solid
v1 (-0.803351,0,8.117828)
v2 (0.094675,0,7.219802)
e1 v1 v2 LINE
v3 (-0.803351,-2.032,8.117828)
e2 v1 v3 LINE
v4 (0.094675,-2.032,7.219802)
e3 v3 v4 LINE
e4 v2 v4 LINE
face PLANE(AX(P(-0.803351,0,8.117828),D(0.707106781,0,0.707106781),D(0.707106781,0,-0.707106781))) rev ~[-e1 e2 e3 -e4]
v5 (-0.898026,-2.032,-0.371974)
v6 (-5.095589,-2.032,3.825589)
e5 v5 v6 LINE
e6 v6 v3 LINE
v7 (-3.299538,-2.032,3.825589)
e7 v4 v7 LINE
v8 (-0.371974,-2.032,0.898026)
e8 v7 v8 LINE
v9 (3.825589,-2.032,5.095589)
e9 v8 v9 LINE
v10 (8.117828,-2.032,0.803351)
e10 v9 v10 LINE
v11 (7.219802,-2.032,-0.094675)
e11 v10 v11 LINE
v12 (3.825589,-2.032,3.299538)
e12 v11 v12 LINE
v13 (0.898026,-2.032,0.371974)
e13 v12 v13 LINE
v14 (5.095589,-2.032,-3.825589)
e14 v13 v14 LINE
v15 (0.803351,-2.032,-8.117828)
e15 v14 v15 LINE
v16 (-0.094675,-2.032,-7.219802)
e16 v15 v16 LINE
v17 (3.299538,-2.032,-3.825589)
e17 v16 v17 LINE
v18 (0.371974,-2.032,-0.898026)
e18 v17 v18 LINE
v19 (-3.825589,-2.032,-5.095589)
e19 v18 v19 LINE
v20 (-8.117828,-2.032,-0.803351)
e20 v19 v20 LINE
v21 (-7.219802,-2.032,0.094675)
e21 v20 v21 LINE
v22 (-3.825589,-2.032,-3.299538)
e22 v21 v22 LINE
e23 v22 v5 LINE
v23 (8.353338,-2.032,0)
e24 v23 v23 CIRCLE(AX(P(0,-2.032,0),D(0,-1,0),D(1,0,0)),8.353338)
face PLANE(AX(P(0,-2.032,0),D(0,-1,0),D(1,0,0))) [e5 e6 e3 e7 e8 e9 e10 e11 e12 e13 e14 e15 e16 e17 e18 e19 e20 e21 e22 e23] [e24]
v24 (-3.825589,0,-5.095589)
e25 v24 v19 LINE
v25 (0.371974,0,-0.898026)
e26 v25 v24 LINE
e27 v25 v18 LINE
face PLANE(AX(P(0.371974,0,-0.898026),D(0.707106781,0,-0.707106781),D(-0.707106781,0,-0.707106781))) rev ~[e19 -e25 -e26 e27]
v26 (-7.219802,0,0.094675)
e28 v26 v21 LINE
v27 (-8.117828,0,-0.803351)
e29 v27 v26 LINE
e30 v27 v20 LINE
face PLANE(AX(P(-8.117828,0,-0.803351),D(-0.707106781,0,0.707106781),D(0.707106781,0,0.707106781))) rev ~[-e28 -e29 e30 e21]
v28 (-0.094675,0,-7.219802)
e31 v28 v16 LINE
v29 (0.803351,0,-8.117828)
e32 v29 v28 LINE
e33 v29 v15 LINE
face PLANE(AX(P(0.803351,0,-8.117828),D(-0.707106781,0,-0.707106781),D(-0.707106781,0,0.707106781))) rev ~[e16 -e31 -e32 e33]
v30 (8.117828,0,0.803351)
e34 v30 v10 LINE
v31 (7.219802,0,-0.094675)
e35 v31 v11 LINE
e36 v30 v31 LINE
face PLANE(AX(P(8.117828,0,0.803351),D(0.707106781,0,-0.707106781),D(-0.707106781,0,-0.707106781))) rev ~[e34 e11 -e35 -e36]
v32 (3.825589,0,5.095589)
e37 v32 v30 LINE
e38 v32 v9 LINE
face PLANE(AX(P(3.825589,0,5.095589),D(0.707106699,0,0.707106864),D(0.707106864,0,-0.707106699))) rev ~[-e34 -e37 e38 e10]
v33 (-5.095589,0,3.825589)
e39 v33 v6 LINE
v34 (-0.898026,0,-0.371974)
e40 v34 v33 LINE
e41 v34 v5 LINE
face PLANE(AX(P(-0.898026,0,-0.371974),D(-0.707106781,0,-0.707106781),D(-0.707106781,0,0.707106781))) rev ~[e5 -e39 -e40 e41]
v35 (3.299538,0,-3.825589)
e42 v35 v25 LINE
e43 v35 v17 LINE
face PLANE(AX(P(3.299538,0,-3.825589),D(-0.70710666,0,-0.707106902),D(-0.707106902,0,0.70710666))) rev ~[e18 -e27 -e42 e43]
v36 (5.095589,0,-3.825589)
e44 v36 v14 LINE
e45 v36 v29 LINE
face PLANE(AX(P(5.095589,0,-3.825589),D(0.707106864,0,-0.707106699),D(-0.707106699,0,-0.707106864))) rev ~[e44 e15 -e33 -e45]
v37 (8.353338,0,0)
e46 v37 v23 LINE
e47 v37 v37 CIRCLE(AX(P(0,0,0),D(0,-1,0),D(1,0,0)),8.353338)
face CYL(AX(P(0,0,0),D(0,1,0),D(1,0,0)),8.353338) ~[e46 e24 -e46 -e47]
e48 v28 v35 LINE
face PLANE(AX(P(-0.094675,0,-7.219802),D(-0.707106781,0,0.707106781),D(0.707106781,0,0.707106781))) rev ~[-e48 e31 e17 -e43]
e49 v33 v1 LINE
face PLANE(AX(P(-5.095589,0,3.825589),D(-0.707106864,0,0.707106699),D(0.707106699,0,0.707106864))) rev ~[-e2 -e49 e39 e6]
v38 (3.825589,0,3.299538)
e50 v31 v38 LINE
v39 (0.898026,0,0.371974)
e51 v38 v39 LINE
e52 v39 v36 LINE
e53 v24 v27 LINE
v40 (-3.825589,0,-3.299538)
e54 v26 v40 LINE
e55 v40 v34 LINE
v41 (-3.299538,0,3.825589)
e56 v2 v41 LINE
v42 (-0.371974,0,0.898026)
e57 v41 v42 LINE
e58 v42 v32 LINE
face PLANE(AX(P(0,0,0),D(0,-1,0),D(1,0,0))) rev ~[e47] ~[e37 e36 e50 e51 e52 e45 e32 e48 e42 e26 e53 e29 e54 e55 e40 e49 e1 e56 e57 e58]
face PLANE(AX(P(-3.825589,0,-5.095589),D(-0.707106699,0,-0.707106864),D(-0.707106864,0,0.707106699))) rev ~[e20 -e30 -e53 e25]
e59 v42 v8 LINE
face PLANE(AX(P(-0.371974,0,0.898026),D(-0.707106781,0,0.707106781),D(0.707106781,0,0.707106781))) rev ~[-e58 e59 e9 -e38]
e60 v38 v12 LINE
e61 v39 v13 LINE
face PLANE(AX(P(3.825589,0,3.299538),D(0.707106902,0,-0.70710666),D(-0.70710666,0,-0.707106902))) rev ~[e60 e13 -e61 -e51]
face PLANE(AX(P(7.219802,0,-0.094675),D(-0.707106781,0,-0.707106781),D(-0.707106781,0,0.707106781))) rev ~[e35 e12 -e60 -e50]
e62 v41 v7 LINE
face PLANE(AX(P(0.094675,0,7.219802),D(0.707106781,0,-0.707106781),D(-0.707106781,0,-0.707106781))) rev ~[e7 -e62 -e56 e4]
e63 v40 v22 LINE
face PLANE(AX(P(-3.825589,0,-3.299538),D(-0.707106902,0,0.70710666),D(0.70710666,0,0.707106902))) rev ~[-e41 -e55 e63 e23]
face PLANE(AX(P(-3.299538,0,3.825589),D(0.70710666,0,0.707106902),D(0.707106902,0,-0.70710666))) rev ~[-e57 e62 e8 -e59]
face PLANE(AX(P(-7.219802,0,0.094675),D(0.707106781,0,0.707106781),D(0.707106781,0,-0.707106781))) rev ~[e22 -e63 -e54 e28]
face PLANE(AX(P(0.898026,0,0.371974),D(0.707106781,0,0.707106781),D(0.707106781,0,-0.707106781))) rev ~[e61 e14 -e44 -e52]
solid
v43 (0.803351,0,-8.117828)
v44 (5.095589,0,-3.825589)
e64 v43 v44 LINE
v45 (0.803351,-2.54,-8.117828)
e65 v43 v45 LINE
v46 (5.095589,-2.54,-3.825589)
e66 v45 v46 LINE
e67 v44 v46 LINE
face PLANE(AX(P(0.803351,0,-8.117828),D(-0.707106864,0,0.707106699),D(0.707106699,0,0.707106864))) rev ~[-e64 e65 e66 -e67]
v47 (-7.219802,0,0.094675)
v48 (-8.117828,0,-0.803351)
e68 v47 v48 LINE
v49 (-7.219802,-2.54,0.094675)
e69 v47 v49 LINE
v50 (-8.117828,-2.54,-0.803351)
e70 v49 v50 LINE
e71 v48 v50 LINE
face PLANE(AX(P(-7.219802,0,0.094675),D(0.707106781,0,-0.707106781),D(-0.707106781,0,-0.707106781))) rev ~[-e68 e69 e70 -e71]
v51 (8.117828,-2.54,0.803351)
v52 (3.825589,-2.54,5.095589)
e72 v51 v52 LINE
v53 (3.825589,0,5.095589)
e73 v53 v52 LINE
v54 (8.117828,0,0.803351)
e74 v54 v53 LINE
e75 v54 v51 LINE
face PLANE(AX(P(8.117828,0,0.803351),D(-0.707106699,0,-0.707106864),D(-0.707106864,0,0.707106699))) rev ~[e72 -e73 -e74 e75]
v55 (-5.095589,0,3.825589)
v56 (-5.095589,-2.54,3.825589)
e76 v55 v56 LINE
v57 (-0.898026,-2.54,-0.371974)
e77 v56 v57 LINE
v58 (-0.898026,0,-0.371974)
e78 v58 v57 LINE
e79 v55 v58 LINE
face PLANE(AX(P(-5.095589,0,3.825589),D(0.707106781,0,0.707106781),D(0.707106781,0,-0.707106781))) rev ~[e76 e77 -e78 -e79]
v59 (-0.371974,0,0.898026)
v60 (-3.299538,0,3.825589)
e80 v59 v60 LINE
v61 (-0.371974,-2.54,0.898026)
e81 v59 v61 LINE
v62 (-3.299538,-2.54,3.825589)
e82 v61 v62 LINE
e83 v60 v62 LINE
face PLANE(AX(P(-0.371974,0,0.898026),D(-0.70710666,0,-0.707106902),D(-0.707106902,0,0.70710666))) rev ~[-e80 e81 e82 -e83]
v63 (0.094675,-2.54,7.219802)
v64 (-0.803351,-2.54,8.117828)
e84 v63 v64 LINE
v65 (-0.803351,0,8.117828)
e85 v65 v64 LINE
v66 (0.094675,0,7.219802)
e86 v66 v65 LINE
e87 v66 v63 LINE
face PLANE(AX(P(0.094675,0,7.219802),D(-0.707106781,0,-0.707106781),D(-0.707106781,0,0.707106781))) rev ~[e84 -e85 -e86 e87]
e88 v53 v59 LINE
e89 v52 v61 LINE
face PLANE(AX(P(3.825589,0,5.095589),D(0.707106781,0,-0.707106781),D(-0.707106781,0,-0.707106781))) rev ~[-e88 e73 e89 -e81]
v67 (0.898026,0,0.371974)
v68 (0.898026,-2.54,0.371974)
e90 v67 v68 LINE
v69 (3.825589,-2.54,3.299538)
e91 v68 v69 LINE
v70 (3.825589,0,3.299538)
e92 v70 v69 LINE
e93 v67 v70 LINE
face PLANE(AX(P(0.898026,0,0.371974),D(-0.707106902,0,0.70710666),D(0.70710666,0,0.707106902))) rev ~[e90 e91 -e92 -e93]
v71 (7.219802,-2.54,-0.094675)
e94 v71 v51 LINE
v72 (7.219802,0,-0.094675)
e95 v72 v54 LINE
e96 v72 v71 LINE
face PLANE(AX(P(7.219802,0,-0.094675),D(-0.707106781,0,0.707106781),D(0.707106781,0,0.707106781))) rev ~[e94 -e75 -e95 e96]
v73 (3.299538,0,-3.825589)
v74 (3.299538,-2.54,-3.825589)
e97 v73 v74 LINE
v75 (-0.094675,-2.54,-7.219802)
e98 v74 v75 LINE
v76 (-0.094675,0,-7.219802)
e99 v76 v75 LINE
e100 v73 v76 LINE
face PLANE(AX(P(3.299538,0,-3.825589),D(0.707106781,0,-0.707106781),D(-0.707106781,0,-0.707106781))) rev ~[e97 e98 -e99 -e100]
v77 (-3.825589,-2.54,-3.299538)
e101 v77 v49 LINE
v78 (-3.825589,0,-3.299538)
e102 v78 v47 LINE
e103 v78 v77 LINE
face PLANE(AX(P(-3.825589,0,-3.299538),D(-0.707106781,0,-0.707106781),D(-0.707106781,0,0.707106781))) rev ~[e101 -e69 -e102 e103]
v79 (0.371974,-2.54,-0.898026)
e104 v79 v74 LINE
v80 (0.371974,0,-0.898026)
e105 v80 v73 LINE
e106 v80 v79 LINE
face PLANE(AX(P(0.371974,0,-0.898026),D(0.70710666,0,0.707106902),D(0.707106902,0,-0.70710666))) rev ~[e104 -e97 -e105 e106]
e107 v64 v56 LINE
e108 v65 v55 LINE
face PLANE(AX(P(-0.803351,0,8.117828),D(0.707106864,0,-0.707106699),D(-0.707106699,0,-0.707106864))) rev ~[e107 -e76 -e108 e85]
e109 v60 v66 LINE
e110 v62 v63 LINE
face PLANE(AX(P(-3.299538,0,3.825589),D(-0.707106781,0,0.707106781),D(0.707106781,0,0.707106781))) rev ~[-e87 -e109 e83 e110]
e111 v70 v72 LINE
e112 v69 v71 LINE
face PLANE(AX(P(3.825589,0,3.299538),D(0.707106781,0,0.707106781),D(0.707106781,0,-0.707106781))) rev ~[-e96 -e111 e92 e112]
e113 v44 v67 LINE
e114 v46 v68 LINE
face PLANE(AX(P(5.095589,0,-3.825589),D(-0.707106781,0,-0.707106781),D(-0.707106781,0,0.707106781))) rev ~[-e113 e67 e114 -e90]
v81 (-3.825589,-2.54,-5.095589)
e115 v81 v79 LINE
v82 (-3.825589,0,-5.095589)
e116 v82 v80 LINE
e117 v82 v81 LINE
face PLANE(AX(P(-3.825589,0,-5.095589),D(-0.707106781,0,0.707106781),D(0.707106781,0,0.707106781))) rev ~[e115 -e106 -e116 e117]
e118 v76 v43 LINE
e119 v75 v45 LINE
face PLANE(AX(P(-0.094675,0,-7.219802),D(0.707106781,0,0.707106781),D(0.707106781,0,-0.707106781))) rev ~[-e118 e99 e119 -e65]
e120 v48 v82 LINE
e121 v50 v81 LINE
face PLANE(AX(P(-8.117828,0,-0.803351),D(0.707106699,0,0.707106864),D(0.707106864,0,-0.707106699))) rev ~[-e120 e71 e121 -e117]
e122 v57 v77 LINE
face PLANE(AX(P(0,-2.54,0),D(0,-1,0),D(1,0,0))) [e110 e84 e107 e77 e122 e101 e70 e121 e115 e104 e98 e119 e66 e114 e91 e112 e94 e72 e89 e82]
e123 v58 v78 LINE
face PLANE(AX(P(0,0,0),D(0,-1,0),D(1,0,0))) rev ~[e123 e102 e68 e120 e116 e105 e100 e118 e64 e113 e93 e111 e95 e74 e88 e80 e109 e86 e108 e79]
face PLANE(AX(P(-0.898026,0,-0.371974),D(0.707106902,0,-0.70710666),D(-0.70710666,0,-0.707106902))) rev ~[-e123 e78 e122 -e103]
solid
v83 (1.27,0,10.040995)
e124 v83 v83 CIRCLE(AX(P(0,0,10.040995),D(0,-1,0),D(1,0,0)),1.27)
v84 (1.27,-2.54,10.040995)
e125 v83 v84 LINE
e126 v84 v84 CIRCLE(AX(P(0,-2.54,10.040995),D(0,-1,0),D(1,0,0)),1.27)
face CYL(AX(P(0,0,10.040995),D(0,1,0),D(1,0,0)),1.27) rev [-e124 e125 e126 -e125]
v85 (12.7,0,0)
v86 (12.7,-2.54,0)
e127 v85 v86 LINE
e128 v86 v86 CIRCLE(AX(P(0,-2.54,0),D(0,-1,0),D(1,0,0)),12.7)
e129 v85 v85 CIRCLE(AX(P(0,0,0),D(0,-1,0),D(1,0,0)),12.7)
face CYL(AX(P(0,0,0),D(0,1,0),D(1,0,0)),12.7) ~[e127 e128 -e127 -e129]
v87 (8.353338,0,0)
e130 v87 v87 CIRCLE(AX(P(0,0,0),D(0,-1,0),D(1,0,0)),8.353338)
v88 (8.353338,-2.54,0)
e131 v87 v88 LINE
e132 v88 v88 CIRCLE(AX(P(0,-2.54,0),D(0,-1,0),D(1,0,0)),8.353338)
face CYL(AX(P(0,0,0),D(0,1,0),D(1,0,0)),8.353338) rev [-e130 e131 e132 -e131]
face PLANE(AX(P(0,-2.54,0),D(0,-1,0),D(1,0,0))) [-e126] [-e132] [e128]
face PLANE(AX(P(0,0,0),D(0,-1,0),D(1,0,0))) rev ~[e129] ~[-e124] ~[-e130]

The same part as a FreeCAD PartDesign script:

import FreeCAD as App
import Part
import Sketcher

V = App.Vector
Q = App.Units.Quantity

doc = App.newDocument("Part")
body = doc.addObject("PartDesign::Body", "Body")
body.AllowCompound = True

sketch1 = body.newObject("Sketcher::SketchObject", "Sketch")
sketch1.AttachmentSupport = (doc.getObject("XZ_Plane"), [""])
sketch1.MapMode = "FlatFace"
sketch1.addGeometry([
    Part.Circle(V(0, 0, 0), V(0, 0, 1), 12.7),
    Part.Circle(V(0, 0, 0), V(0, 0, 1), 8.4),
    Part.Circle(V(0, 10, 0), V(0, 0, 1), 1.3),
    Part.LineSegment(V(-5.1, 3.8, 0), V(-0.9, -0.4, 0)),
    Part.LineSegment(V(-0.9, -0.4, 0), V(-3.8, -3.3, 0)),
    Part.LineSegment(V(-3.8, -3.3, 0), V(-7.2, 0.1, 0)),
    Part.LineSegment(V(-7.2, 0.1, 0), V(-8.1, -0.8, 0)),
    Part.LineSegment(V(-8.1, -0.8, 0), V(-3.8, -5.1, 0)),
    Part.LineSegment(V(-3.8, -5.1, 0), V(0.4, -0.9, 0)),
    Part.LineSegment(V(0.4, -0.9, 0), V(3.3, -3.8, 0)),
    Part.LineSegment(V(3.3, -3.8, 0), V(-0.1, -7.2, 0)),
    Part.LineSegment(V(-0.1, -7.2, 0), V(0.8, -8.1, 0)),
    Part.LineSegment(V(0.8, -8.1, 0), V(5.1, -3.8, 0)),
    Part.LineSegment(V(5.1, -3.8, 0), V(0.9, 0.4, 0)),
    Part.LineSegment(V(0.9, 0.4, 0), V(3.8, 3.3, 0)),
    Part.LineSegment(V(3.8, 3.3, 0), V(7.2, -0.1, 0)),
    Part.LineSegment(V(7.2, -0.1, 0), V(8.1, 0.8, 0)),
    Part.LineSegment(V(8.1, 0.8, 0), V(3.8, 5.1, 0)),
    Part.LineSegment(V(3.8, 5.1, 0), V(-0.4, 0.9, 0)),
    Part.LineSegment(V(-0.4, 0.9, 0), V(-3.3, 3.8, 0)),
    Part.LineSegment(V(-3.3, 3.8, 0), V(0.1, 7.2, 0)),
    Part.LineSegment(V(0.1, 7.2, 0), V(-0.8, 8.1, 0)),
    Part.LineSegment(V(-0.8, 8.1, 0), V(-5.1, 3.8, 0)),
], False)
sketch1.addConstraint([
    Sketcher.Constraint("Coincident", 3, 2, 4, 1),
    Sketcher.Constraint("Coincident", 4, 2, 5, 1),
    Sketcher.Constraint("Coincident", 5, 2, 6, 1),
    Sketcher.Constraint("Coincident", 6, 2, 7, 1),
    Sketcher.Constraint("Coincident", 7, 2, 8, 1),
    Sketcher.Constraint("Coincident", 8, 2, 9, 1),
    Sketcher.Constraint("Coincident", 9, 2, 10, 1),
    Sketcher.Constraint("Coincident", 10, 2, 11, 1),
    Sketcher.Constraint("Coincident", 11, 2, 12, 1),
    Sketcher.Constraint("Coincident", 12, 2, 13, 1),
    Sketcher.Constraint("Coincident", 13, 2, 14, 1),
    Sketcher.Constraint("Coincident", 14, 2, 15, 1),
    Sketcher.Constraint("Coincident", 15, 2, 16, 1),
    Sketcher.Constraint("Coincident", 16, 2, 17, 1),
    Sketcher.Constraint("Coincident", 17, 2, 18, 1),
    Sketcher.Constraint("Coincident", 18, 2, 19, 1),
    Sketcher.Constraint("Coincident", 19, 2, 20, 1),
    Sketcher.Constraint("Coincident", 20, 2, 21, 1),
    Sketcher.Constraint("Coincident", 21, 2, 22, 1),
    Sketcher.Constraint("Coincident", 22, 2, 3, 1),
    Sketcher.Constraint("Coincident", 0, 3, -1, 1),
    Sketcher.Constraint("Coincident", 1, 3, -1, 1),
    Sketcher.Constraint("Symmetric", 3, 2, 13, 2, -1, 1),
    Sketcher.Constraint("Symmetric", 4, 2, 14, 2, -1, 1),
    Sketcher.Constraint("Symmetric", 5, 2, 15, 2, -1, 1),
    Sketcher.Constraint("Symmetric", 6, 2, 16, 2, -1, 1),
    Sketcher.Constraint("Symmetric", 7, 2, 17, 2, -1, 1),
    Sketcher.Constraint("Symmetric", 8, 2, 18, 2, -1, 1),
    Sketcher.Constraint("Symmetric", 9, 2, 19, 2, -1, 1),
    Sketcher.Constraint("Symmetric", 10, 2, 20, 2, -1, 1),
    Sketcher.Constraint("Symmetric", 11, 2, 21, 2, -1, 1),
    Sketcher.Constraint("Symmetric", 12, 2, 22, 2, -1, 1),
    Sketcher.Constraint("PointOnObject", 2, 3, -2),
    Sketcher.Constraint("Perpendicular", 3, 4),
    Sketcher.Constraint("Perpendicular", 4, 5),
    Sketcher.Constraint("Perpendicular", 5, 6),
    Sketcher.Constraint("Perpendicular", 6, 7),
    Sketcher.Constraint("Perpendicular", 7, 8),
    Sketcher.Constraint("Perpendicular", 8, 9),
    Sketcher.Constraint("Perpendicular", 9, 10),
    Sketcher.Constraint("Perpendicular", 10, 11),
    Sketcher.Constraint("Perpendicular", 11, 12),
    Sketcher.Constraint("Horizontal", 9, 2, 12, 2),
    Sketcher.Constraint("Vertical", 4, 2, 7, 2),
    Sketcher.Constraint("Equal", 3, 8),
    Sketcher.Constraint("Equal", 4, 9),
    Sketcher.Constraint("Equal", 5, 10),
    Sketcher.Constraint("Equal", 6, 11),
    Sketcher.Constraint("Diameter", 0, Q("1 in")),
    Sketcher.Constraint("Diameter", 2, Q("0.1 in")),
    Sketcher.Constraint("Angle", 3, Q("-45 deg")),
    Sketcher.Constraint("Distance", 6, Q("0.05 in")),
    Sketcher.Constraint("DistanceX", 3, 2, 8, 2, Q("0.05 in")),
    Sketcher.Constraint("Distance", 4, Q("0.163 in")),
    Sketcher.Constraint("Diameter", 1, 16.706676),
    Sketcher.Constraint("DistanceX", 5, 2, -1, 1, 7.219802),
    Sketcher.Constraint("DistanceY", 3, 2, 2, 3, 10.412969),
])
pad1 = body.newObject("PartDesign::Pad", "Pad")
pad1.Profile = sketch1
pad1.Length = Q("0.1 in")
body2 = doc.addObject("PartDesign::Body", "Body001")

sketch2 = body2.newObject("Sketcher::SketchObject", "Sketch001")
sketch2.AttachmentSupport = (doc.getObject("XZ_Plane001"), [""])
sketch2.MapMode = "FlatFace"
sketch2.addGeometry([
    Part.Circle(V(0, 0, 0), V(0, 0, 1), 8.4),
    Part.LineSegment(V(-7.2, 0.1, 0), V(-3.8, -3.3, 0)),
    Part.LineSegment(V(-3.8, -3.3, 0), V(-0.9, -0.4, 0)),
    Part.LineSegment(V(-0.9, -0.4, 0), V(-5.1, 3.8, 0)),
    Part.LineSegment(V(-5.1, 3.8, 0), V(-0.8, 8.1, 0)),
    Part.LineSegment(V(-0.8, 8.1, 0), V(0.1, 7.2, 0)),
    Part.LineSegment(V(0.1, 7.2, 0), V(-3.3, 3.8, 0)),
    Part.LineSegment(V(-3.3, 3.8, 0), V(-0.4, 0.9, 0)),
    Part.LineSegment(V(-0.4, 0.9, 0), V(3.8, 5.1, 0)),
    Part.LineSegment(V(3.8, 5.1, 0), V(8.1, 0.8, 0)),
    Part.LineSegment(V(8.1, 0.8, 0), V(7.2, -0.1, 0)),
    Part.LineSegment(V(7.2, -0.1, 0), V(3.8, 3.3, 0)),
    Part.LineSegment(V(3.8, 3.3, 0), V(0.9, 0.4, 0)),
    Part.LineSegment(V(0.9, 0.4, 0), V(5.1, -3.8, 0)),
    Part.LineSegment(V(5.1, -3.8, 0), V(0.8, -8.1, 0)),
    Part.LineSegment(V(0.8, -8.1, 0), V(-0.1, -7.2, 0)),
    Part.LineSegment(V(-0.1, -7.2, 0), V(3.3, -3.8, 0)),
    Part.LineSegment(V(3.3, -3.8, 0), V(0.4, -0.9, 0)),
    Part.LineSegment(V(0.4, -0.9, 0), V(-3.8, -5.1, 0)),
    Part.LineSegment(V(-3.8, -5.1, 0), V(-8.1, -0.8, 0)),
    Part.LineSegment(V(-8.1, -0.8, 0), V(-7.2, 0.1, 0)),
], False)
sketch2.addConstraint([
    Sketcher.Constraint("Coincident", 1, 2, 2, 1),
    Sketcher.Constraint("Coincident", 2, 2, 3, 1),
    Sketcher.Constraint("Coincident", 3, 2, 4, 1),
    Sketcher.Constraint("Coincident", 4, 2, 5, 1),
    Sketcher.Constraint("Coincident", 5, 2, 6, 1),
    Sketcher.Constraint("Coincident", 6, 2, 7, 1),
    Sketcher.Constraint("Coincident", 7, 2, 8, 1),
    Sketcher.Constraint("Coincident", 8, 2, 9, 1),
    Sketcher.Constraint("Coincident", 9, 2, 10, 1),
    Sketcher.Constraint("Coincident", 10, 2, 11, 1),
    Sketcher.Constraint("Coincident", 11, 2, 12, 1),
    Sketcher.Constraint("Coincident", 12, 2, 13, 1),
    Sketcher.Constraint("Coincident", 13, 2, 14, 1),
    Sketcher.Constraint("Coincident", 14, 2, 15, 1),
    Sketcher.Constraint("Coincident", 15, 2, 16, 1),
    Sketcher.Constraint("Coincident", 16, 2, 17, 1),
    Sketcher.Constraint("Coincident", 17, 2, 18, 1),
    Sketcher.Constraint("Coincident", 18, 2, 19, 1),
    Sketcher.Constraint("Coincident", 19, 2, 20, 1),
    Sketcher.Constraint("Coincident", 20, 2, 1, 1),
    Sketcher.Constraint("Coincident", 0, 3, -1, 1),
    Sketcher.Constraint("Symmetric", 1, 2, 11, 2, -1, 1),
    Sketcher.Constraint("Symmetric", 2, 2, 12, 2, -1, 1),
    Sketcher.Constraint("Symmetric", 3, 2, 13, 2, -1, 1),
    Sketcher.Constraint("Symmetric", 4, 2, 14, 2, -1, 1),
    Sketcher.Constraint("Symmetric", 5, 2, 15, 2, -1, 1),
    Sketcher.Constraint("Symmetric", 6, 2, 16, 2, -1, 1),
    Sketcher.Constraint("Symmetric", 7, 2, 17, 2, -1, 1),
    Sketcher.Constraint("Symmetric", 8, 2, 18, 2, -1, 1),
    Sketcher.Constraint("Symmetric", 9, 2, 19, 2, -1, 1),
    Sketcher.Constraint("Symmetric", 10, 2, 20, 2, -1, 1),
    Sketcher.Constraint("Perpendicular", 1, 2),
    Sketcher.Constraint("Perpendicular", 2, 3),
    Sketcher.Constraint("Perpendicular", 3, 4),
    Sketcher.Constraint("Perpendicular", 4, 5),
    Sketcher.Constraint("Perpendicular", 5, 6),
    Sketcher.Constraint("Perpendicular", 6, 7),
    Sketcher.Constraint("Perpendicular", 7, 8),
    Sketcher.Constraint("Perpendicular", 8, 9),
    Sketcher.Constraint("Perpendicular", 9, 10),
    Sketcher.Constraint("Horizontal", 3, 2, 6, 2),
    Sketcher.Constraint("Vertical", 8, 2, 11, 2),
    Sketcher.Constraint("Equal", 1, 6),
    Sketcher.Constraint("Equal", 2, 7),
    Sketcher.Constraint("Equal", 3, 8),
    Sketcher.Constraint("Equal", 4, 9),
    Sketcher.Constraint("Angle", 1, Q("-45 deg")),
    Sketcher.Constraint("Distance", 5, Q("0.05 in")),
    Sketcher.Constraint("DistanceX", 3, 2, 1, 2, Q("0.05 in")),
    Sketcher.Constraint("Distance", 2, Q("0.163 in")),
    Sketcher.Constraint("Diameter", 0, 16.706676),
    Sketcher.Constraint("DistanceY", -1, 1, 5, 2, 7.219802),
])
pad2 = body2.newObject("PartDesign::Pad", "Pad001")
pad2.Profile = sketch2
pad2.Length = Q("0.08 in")

doc.recompute()
